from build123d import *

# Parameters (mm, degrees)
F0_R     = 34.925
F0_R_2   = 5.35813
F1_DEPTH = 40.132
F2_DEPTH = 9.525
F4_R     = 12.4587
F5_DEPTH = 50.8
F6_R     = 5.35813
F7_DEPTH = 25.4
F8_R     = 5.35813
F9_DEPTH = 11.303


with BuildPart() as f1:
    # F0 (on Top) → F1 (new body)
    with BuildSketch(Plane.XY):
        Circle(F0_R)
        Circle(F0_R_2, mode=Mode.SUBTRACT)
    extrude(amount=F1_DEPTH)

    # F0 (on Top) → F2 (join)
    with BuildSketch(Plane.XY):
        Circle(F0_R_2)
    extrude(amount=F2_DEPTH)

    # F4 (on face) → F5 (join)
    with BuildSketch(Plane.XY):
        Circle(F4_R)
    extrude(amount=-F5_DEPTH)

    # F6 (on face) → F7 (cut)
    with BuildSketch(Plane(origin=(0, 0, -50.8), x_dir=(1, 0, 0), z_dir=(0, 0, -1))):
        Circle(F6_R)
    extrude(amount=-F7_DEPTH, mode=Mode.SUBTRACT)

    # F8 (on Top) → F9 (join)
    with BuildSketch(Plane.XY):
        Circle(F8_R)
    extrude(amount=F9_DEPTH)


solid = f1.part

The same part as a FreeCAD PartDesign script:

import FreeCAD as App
import Part
import Sketcher

V = App.Vector
Q = App.Units.Quantity

doc = App.newDocument("Part")
body = doc.addObject("PartDesign::Body", "Body")

# Sketch on XY plane
sketch1 = doc.addObject("Sketcher::SketchObject", "Sketch")
body.addObject(sketch1)
sketch1.AttachmentSupport = (doc.XY_Plane, [""])
sketch1.MapMode = "FlatFace"
sketch1.addGeometry([
    Part.Circle(V(0, 0, 0), V(0, 0, 1), 34.925),
    Part.Circle(V(0, 0, 0), V(0, 0, 1), 5.35813),
], False)
sketch1.addConstraint([
    Sketcher.Constraint("Coincident", 0, 3, -1, 1),
    Sketcher.Constraint("Coincident", 1, 3, -1, 1),
    Sketcher.Constraint("Diameter", 0, Q("2.75 in")),
    Sketcher.Constraint("Diameter", 1, Q("0.4219 in")),
])
pad1 = doc.addObject("PartDesign::Pad", "Pad")
body.addObject(pad1)
pad1.Profile = sketch1
pad1.Length = Q("1.58 in")

# Sketch on XY plane
sketch2 = doc.addObject("Sketcher::SketchObject", "Sketch001")
body.addObject(sketch2)
sketch2.AttachmentSupport = (doc.XY_Plane, [""])
sketch2.MapMode = "FlatFace"
sketch2.addGeometry(Part.Circle(V(0, 0, 0), V(0, 0, 1), 5.35813), False)
sketch2.addConstraint([
    Sketcher.Constraint("Coincident", 0, 3, -1, 1),
    Sketcher.Constraint("Diameter", 0, Q("0.4219 in")),
])
pad2 = doc.addObject("PartDesign::Pad", "Pad001")
body.addObject(pad2)
pad2.Profile = sketch2
pad2.Length = Q("0.375 in")

# Sketch on XY plane
sketch3 = doc.addObject("Sketcher::SketchObject", "Sketch002")
body.addObject(sketch3)
sketch3.AttachmentSupport = (doc.XY_Plane, [""])
sketch3.MapMode = "FlatFace"
sketch3.addGeometry(Part.Circle(V(0, 0, 0), V(0, 0, 1), 12.4587), False)
sketch3.addConstraint([
    Sketcher.Constraint("Coincident", 0, 3, -1, 1),
    Sketcher.Constraint("Diameter", 0, Q("0.981 in")),
])
pad3 = doc.addObject("PartDesign::Pad", "Pad002")
body.addObject(pad3)
pad3.Profile = sketch3
pad3.Length = Q("2 in")
pad3.Reversed = True

# Sketch on XY plane
sketch4 = doc.addObject("Sketcher::SketchObject", "Sketch003")
body.addObject(sketch4)
sketch4.AttachmentSupport = (doc.XY_Plane, [""])
sketch4.MapMode = "FlatFace"
sketch4.AttachmentOffset = App.Placement(V(0, 0, -2 * 25.4), App.Rotation())
sketch4.addGeometry(Part.Circle(V(0, 0, 0), V(0, 0, 1), 5.35813), False)
sketch4.addConstraint([
    Sketcher.Constraint("Coincident", 0, 3, -1, 1),
    Sketcher.Constraint("Diameter", 0, Q("0.4219 in")),
])
pocket1 = doc.addObject("PartDesign::Pocket", "Pocket")
body.addObject(pocket1)
pocket1.Profile = sketch4
pocket1.Length = Q("1 in")
pocket1.Reversed = True

# Sketch on XY plane
sketch5 = doc.addObject("Sketcher::SketchObject", "Sketch004")
body.addObject(sketch5)
sketch5.AttachmentSupport = (doc.XY_Plane, [""])
sketch5.MapMode = "FlatFace"
sketch5.addGeometry(Part.Circle(V(0, 0, 0), V(0, 0, 1), 5.35813), False)
sketch5.addConstraint([
    Sketcher.Constraint("Coincident", 0, 3, -1, 1),
    Sketcher.Constraint("Diameter", 0, Q("0.4219 in")),
])
pad4 = doc.addObject("PartDesign::Pad", "Pad003")
body.addObject(pad4)
pad4.Profile = sketch5
pad4.Length = Q("0.445 in")

doc.recompute()
